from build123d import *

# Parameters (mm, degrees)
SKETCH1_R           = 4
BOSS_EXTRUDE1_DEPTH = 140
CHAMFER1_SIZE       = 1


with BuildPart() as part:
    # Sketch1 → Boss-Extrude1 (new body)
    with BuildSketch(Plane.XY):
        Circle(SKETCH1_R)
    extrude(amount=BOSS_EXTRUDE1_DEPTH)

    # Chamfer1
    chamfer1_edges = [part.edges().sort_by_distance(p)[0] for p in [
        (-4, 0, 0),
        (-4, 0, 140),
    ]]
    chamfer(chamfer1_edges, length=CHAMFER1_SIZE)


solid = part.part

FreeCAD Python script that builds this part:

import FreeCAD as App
import Part
import Sketcher

V = App.Vector
Q = App.Units.Quantity


def edges_at(feature, points):
    """Names of the edges that pass closest to the given points."""
    edges = feature.Shape.Edges
    near = lambda p: min(range(len(edges)), key=lambda i: edges[i].distToShape(Part.Vertex(*p))[0])
    return sorted({f"Edge{near(p) + 1}" for p in points})

doc = App.newDocument("Part")
params = doc.addObject("Spreadsheet::Sheet", "Params")
for row, (alias, value) in enumerate([
    ("sketch1_diameter", "8 mm"),
    ("pad1_length", "140 mm"),
    ("chamfer_size", "1 mm"),
], start=1):
    params.set(f"A{row}", alias)
    params.set(f"B{row}", "=" + value)
    params.setAlias(f"B{row}", alias)

body = doc.addObject("PartDesign::Body", "Body")

sketch1 = doc.addObject("Sketcher::SketchObject", "Sketch")
body.addObject(sketch1)
sketch1.AttachmentSupport = (doc.XY_Plane, [""])
sketch1.MapMode = "FlatFace"
sketch1.addGeometry(Part.Circle(V(0, 0, 0), V(0, 0, 1), 4), False)
sketch1.addConstraint([
    Sketcher.Constraint("Coincident", 0, 3, -1, 1),
    Sketcher.Constraint("Diameter", 0, Q("8 mm")),
])
sketch1.setExpression("Constraints[1]", "Params.sketch1_diameter")
pad1 = doc.addObject("PartDesign::Pad", "Pad")
body.addObject(pad1)
pad1.Profile = sketch1
pad1.setExpression("Length", "Params.pad1_length")
doc.recompute()

chamfer = doc.addObject("PartDesign::Chamfer", "Chamfer")
body.addObject(chamfer)
chamfer.Base = (pad1, edges_at(pad1, [(-4, 0, 0), (-4, 0, 140)]))
chamfer.setExpression("Size", "Params.chamfer_size")

doc.recompute()
